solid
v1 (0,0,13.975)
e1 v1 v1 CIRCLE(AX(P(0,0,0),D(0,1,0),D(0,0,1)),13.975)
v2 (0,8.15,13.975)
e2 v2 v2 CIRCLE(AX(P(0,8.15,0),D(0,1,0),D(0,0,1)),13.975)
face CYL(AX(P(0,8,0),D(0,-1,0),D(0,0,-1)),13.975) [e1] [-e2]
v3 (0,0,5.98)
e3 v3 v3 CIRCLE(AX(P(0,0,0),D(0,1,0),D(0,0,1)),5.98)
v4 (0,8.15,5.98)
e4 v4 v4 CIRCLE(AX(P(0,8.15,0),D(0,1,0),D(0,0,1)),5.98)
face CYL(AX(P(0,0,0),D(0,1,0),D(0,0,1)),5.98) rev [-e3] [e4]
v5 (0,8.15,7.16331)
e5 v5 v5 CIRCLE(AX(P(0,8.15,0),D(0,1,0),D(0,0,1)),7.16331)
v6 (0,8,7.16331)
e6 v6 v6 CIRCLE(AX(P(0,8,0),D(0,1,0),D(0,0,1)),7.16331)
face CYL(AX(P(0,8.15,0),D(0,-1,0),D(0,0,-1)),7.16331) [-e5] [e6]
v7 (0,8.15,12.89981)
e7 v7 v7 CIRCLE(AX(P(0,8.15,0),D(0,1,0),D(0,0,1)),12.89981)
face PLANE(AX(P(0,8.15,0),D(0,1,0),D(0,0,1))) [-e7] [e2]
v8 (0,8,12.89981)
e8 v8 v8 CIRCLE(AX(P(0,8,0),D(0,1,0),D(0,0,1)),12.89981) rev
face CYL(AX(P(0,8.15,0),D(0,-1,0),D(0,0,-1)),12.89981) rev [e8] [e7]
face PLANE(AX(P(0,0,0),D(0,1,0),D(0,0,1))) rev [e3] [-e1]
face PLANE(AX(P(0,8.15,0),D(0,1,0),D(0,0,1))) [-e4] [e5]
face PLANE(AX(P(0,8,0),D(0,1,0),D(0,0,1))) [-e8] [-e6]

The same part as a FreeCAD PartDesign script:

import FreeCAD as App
import Part
import Sketcher

doc = App.newDocument("Part")
body = doc.addObject("PartDesign::Body", "Body")

# Sketch on XZ plane
sketch1 = body.newObject("Sketcher::SketchObject", "Sketch")
sketch1.AttachmentSupport = (doc.getObject("XZ_Plane"), [""])
sketch1.MapMode = "FlatFace"
sketch1.addGeometry(Part.Circle(App.Vector(0, 0, 0), App.Vector(0, 0, 1), 14), False)
sketch1.addConstraint(Sketcher.Constraint("Coincident", 0, 3, -1, 1))
sketch1.addConstraint(Sketcher.Constraint("Diameter", 0, 27.95))
pad1 = body.newObject("PartDesign::Pad", "Pad")
pad1.Profile = sketch1
pad1.Length = 8
pad1.Reversed = True

# Sketch on XZ plane
sketch2 = body.newObject("Sketcher::SketchObject", "Sketch001")
sketch2.AttachmentSupport = (doc.getObject("XZ_Plane"), [""])
sketch2.MapMode = "FlatFace"
sketch2.AttachmentOffset = App.Placement(App.Vector(0, 0, -8), App.Rotation())
sketch2.addGeometry(Part.Circle(App.Vector(0, 0, 0), App.Vector(0, 0, 1), 6), False)
sketch2.addConstraint(Sketcher.Constraint("Coincident", 0, 3, -1, 1))
sketch2.addConstraint(Sketcher.Constraint("Diameter", 0, 11.96))
pocket1 = body.newObject("PartDesign::Pocket", "Pocket")
pocket1.Profile = sketch2
pocket1.Length = 8
pocket1.Reversed = True

# Sketch on XZ plane
sketch3 = body.newObject("Sketcher::SketchObject", "Sketch002")
sketch3.AttachmentSupport = (doc.getObject("XZ_Plane"), [""])
sketch3.MapMode = "FlatFace"
sketch3.AttachmentOffset = App.Placement(App.Vector(0, 0, -8), App.Rotation())
sketch3.addGeometry(Part.Circle(App.Vector(0, 0, 0), App.Vector(0, 0, 1), 7), False)
sketch3.addGeometry(Part.Circle(App.Vector(0, 0, 0), App.Vector(0, 0, 1), 6), False)
sketch3.addConstraint(Sketcher.Constraint("Coincident", 0, 3, -1, 1))
sketch3.addConstraint(Sketcher.Constraint("Coincident", 1, 3, -1, 1))
sketch3.addConstraint(Sketcher.Constraint("Diameter", 1, 11.96))
sketch3.addConstraint(Sketcher.Constraint("Diameter", 0, 14.32662))
pad2 = body.newObject("PartDesign::Pad", "Pad001")
pad2.Profile = sketch3
pad2.Length = 0.15
pad2.Reversed = True

# Sketch on XZ plane
sketch4 = body.newObject("Sketcher::SketchObject", "Sketch003")
sketch4.AttachmentSupport = (doc.getObject("XZ_Plane"), [""])
sketch4.MapMode = "FlatFace"
sketch4.addGeometry(Part.Circle(App.Vector(0, 0, 0), App.Vector(0, 0, 1), 14), False)
sketch4.addGeometry(Part.Circle(App.Vector(0, 0, 0), App.Vector(0, 0, 1), 13), False)
sketch4.addConstraint(Sketcher.Constraint("Coincident", 0, 3, -1, 1))
sketch4.addConstraint(Sketcher.Constraint("Coincident", 1, 3, -1, 1))
sketch4.addConstraint(Sketcher.Constraint("Diameter", 0, 27.95))
sketch4.addConstraint(Sketcher.Constraint("Diameter", 1, 25.79962))
pad3 = body.newObject("PartDesign::Pad", "Pad002")
pad3.Profile = sketch4
pad3.Length = 8.15
pad3.Reversed = True

doc.recompute()
